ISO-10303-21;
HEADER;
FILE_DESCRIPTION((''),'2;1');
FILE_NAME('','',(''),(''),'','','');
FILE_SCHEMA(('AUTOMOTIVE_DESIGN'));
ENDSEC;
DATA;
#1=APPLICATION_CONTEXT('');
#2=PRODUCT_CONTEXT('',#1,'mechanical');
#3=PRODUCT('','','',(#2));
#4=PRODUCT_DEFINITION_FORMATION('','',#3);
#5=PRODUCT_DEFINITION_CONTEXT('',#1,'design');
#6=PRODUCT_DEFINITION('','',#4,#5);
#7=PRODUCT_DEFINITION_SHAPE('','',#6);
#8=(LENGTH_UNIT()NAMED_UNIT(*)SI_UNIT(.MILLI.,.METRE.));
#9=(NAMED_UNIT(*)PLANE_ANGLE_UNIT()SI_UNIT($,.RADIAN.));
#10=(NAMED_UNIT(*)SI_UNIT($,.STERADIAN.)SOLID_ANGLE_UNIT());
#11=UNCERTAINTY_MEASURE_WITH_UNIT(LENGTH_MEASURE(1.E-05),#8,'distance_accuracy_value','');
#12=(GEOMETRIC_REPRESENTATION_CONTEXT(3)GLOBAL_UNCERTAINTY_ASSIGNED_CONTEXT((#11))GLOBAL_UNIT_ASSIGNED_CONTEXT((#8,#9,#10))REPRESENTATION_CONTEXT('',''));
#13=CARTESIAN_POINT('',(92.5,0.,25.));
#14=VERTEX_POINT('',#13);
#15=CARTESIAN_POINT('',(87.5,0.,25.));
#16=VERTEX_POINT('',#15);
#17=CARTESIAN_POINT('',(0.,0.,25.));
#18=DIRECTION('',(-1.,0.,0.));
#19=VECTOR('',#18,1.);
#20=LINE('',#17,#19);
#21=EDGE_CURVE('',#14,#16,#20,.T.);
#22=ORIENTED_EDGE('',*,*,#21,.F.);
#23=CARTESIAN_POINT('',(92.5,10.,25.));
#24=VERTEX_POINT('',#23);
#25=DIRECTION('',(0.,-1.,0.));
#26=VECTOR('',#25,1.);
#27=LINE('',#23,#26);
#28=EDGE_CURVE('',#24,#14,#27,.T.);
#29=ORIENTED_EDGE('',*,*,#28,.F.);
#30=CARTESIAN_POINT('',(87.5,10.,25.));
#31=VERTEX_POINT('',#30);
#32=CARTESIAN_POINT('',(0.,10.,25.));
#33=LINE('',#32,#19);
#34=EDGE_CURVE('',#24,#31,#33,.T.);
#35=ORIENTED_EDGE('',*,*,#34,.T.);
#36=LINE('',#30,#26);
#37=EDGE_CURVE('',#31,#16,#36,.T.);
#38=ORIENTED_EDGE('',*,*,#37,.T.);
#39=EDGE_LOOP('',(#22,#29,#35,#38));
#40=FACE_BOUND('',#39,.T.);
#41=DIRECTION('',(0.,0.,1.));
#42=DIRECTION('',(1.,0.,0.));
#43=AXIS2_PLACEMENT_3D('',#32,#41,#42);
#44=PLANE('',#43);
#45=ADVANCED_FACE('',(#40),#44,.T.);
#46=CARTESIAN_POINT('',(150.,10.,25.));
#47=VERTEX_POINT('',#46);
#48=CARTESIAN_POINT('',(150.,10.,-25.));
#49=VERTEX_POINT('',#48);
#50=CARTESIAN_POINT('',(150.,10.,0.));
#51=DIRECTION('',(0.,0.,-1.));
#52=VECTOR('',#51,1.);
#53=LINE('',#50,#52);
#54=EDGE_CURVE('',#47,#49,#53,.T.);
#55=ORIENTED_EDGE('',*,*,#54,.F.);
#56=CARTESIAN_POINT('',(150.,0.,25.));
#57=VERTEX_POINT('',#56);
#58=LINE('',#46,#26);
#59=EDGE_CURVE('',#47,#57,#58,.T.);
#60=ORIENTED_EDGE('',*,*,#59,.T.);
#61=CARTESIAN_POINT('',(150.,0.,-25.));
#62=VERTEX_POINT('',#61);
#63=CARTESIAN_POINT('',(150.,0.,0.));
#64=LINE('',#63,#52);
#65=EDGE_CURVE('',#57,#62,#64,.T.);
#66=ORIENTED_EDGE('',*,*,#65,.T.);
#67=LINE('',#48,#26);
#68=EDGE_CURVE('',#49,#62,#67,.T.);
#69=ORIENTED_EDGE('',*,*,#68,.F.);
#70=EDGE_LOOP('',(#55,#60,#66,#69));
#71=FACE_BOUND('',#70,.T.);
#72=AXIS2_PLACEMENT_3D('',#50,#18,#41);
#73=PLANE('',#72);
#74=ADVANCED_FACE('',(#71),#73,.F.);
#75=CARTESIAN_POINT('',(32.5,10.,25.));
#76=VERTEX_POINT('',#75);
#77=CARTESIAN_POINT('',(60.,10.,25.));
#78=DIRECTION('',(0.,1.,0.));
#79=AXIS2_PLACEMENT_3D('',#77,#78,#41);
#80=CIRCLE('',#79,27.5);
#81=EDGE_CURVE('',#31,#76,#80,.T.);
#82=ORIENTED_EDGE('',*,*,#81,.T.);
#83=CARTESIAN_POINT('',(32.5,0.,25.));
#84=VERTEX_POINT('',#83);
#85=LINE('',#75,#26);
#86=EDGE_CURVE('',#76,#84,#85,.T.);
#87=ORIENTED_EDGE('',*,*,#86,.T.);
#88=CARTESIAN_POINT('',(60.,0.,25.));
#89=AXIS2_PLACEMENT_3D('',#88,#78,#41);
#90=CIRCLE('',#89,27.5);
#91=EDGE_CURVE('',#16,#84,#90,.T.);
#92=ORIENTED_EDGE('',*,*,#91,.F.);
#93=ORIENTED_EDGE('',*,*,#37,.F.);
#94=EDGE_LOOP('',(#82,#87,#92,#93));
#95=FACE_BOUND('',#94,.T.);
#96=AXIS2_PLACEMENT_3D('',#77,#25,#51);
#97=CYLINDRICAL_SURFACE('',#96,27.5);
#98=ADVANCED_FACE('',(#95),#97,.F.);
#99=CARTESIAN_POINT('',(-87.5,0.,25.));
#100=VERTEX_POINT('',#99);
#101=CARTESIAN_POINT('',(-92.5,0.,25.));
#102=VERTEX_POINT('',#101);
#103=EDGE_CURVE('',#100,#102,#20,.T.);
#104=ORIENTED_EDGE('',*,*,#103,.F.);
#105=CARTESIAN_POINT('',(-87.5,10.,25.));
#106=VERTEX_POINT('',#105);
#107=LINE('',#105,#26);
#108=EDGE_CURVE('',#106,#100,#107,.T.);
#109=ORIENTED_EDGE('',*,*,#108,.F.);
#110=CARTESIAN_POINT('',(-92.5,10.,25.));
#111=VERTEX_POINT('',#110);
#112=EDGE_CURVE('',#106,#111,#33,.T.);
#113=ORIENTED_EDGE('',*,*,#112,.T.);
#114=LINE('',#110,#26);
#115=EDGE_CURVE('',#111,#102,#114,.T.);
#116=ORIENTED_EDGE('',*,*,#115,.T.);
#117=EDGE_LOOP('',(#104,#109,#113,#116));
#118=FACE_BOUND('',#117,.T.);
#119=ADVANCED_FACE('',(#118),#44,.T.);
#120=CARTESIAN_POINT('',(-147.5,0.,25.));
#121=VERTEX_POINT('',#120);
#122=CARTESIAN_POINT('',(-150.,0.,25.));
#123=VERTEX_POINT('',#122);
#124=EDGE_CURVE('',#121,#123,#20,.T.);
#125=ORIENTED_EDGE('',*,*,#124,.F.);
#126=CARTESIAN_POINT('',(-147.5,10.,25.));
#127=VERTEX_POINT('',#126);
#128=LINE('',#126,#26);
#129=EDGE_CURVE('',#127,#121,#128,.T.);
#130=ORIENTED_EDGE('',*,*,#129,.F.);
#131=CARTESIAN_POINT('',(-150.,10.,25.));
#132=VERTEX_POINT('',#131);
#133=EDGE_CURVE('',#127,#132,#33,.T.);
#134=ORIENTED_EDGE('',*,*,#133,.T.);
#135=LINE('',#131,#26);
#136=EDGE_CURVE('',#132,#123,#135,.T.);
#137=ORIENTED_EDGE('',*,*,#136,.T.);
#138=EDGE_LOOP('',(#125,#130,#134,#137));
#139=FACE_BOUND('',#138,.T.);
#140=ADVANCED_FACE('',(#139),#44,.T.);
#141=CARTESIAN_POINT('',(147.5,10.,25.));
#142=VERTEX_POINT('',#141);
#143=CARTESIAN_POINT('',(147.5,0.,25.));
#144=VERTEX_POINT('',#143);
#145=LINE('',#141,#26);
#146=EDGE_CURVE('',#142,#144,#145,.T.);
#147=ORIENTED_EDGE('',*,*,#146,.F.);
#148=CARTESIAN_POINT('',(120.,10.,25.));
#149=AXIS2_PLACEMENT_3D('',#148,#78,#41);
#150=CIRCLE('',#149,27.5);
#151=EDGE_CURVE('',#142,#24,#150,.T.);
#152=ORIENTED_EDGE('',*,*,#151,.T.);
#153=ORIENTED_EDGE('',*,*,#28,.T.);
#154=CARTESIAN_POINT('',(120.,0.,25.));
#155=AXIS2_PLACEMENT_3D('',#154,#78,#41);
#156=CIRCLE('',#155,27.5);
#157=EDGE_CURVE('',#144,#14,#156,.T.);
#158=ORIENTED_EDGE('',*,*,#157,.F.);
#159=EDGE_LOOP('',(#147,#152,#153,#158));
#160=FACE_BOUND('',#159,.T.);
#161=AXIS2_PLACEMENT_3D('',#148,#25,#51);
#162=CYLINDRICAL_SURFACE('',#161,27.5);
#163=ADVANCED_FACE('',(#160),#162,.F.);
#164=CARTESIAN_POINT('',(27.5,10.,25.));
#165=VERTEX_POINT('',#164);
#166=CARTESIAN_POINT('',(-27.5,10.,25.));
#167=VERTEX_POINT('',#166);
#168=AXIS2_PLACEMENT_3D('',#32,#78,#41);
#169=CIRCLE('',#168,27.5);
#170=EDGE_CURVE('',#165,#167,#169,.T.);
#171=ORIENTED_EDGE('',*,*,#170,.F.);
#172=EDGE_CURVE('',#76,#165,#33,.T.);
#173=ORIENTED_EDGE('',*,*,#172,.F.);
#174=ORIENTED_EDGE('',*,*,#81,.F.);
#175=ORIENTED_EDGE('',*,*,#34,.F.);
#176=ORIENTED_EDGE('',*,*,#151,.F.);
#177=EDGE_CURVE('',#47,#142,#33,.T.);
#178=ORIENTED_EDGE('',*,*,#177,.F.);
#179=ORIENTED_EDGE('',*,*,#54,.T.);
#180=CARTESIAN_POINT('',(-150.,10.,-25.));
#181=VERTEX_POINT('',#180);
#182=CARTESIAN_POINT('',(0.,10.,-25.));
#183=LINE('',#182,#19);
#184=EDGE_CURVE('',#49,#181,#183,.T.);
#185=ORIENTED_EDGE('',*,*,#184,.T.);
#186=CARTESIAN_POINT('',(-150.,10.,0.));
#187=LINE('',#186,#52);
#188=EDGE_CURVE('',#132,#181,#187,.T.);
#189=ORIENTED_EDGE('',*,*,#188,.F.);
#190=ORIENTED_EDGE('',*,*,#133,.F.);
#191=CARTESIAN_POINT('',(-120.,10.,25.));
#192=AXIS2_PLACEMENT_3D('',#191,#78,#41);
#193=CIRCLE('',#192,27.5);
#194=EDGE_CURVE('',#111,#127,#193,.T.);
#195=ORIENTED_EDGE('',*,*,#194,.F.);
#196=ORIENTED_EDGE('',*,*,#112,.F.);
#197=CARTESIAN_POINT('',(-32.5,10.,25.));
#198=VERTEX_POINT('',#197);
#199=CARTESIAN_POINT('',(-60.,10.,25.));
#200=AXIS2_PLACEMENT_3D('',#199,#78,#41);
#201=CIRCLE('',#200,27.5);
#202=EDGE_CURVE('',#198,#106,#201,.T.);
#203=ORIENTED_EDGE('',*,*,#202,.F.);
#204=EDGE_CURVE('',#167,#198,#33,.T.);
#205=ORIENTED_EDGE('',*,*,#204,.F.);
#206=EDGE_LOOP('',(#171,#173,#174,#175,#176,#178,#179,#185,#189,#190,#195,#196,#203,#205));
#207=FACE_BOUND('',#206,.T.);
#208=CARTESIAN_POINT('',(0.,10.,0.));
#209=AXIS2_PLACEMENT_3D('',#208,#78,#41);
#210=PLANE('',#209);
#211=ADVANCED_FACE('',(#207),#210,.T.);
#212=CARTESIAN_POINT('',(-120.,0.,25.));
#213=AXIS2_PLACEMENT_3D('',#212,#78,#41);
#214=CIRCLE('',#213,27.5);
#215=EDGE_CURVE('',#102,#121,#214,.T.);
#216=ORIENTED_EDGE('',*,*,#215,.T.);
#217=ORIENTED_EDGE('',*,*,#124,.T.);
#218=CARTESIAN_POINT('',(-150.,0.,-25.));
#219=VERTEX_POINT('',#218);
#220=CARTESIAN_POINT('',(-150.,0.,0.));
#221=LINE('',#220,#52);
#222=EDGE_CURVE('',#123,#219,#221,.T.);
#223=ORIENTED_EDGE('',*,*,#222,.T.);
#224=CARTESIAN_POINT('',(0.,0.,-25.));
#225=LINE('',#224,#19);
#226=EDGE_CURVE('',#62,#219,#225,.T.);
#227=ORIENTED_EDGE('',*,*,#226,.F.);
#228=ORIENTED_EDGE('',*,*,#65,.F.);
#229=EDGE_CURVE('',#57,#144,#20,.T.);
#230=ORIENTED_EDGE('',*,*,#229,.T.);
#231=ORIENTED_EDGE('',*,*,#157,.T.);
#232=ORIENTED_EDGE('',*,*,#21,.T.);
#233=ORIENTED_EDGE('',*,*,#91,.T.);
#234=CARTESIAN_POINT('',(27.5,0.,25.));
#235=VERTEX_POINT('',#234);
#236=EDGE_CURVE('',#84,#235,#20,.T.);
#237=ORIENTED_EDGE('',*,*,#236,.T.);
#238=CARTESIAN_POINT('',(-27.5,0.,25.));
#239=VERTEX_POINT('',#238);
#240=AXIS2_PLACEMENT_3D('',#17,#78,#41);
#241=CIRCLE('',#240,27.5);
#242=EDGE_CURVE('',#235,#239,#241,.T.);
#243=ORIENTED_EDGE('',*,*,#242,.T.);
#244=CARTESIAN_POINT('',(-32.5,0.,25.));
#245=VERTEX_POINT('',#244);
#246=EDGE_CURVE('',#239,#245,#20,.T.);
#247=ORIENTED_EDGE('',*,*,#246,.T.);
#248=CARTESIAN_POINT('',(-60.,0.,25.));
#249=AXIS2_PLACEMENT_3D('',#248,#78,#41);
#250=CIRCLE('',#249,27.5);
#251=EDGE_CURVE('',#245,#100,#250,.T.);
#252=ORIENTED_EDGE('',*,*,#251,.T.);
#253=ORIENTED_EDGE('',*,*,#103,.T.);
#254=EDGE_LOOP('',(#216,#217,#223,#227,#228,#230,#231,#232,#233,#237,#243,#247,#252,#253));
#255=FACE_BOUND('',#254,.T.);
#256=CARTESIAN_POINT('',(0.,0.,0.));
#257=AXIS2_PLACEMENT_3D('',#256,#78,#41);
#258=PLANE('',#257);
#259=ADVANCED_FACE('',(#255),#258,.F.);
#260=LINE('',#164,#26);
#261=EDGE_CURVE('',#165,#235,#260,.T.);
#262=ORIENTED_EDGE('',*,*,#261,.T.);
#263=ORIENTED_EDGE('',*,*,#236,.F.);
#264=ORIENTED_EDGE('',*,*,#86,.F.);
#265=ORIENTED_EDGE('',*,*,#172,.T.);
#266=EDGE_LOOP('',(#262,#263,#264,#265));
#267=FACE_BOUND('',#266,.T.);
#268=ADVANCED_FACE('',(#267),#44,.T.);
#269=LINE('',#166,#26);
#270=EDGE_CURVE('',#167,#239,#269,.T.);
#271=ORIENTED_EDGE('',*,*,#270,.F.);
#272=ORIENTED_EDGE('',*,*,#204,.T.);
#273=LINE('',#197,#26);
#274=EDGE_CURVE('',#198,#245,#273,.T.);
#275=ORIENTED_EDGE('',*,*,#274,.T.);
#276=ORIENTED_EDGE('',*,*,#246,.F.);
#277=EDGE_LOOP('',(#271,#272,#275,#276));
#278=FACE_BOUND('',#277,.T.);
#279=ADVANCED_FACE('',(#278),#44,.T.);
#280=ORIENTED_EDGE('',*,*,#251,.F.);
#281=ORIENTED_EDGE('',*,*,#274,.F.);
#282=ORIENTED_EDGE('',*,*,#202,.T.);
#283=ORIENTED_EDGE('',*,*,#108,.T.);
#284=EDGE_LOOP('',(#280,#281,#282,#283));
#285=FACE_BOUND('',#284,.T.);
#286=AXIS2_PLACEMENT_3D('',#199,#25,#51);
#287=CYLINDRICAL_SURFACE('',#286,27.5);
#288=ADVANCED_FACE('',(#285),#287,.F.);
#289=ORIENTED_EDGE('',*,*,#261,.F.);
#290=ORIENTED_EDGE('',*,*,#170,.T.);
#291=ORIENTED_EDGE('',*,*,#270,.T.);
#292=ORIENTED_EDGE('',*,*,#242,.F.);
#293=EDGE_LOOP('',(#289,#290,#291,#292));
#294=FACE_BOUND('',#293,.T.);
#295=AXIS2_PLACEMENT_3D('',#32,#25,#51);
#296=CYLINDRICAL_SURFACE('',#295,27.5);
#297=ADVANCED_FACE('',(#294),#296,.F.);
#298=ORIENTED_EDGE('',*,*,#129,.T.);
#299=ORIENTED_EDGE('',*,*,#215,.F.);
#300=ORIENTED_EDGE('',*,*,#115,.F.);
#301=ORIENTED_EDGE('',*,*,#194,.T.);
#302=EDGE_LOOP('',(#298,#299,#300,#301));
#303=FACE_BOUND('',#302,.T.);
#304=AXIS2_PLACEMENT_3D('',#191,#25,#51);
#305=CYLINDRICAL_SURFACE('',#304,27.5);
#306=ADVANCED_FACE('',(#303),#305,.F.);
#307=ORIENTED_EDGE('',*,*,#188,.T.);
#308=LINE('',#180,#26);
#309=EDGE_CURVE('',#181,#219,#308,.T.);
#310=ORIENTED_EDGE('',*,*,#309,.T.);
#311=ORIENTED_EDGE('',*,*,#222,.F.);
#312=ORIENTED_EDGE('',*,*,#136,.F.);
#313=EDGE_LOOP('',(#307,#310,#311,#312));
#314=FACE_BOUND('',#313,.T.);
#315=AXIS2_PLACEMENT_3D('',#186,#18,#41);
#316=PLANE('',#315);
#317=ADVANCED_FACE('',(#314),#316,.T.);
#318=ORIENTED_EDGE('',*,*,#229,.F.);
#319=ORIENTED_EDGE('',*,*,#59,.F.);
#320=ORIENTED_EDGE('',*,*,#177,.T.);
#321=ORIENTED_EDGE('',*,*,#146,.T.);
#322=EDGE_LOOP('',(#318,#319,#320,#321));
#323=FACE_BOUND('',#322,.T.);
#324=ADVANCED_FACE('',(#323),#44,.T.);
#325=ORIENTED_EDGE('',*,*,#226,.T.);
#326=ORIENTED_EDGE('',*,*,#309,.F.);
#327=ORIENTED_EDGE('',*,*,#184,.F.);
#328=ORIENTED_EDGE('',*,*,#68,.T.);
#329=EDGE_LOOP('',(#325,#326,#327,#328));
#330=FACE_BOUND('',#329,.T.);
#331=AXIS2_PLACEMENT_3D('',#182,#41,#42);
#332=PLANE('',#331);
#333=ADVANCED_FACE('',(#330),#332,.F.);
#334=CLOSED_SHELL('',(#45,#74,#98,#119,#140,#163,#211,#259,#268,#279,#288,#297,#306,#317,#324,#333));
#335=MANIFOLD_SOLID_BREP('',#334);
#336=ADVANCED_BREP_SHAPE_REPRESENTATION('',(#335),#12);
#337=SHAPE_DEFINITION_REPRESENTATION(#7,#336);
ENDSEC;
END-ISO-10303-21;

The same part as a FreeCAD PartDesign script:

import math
import FreeCAD as App
import Part
import Sketcher
from FreeCAD import Vector
Q = App.Units.Quantity

doc = App.newDocument("Part")
params = doc.addObject("Spreadsheet::Sheet", "Params")
for row, (alias, value) in enumerate([
    ("sketch1_radius", "27.5 mm"),
    ("sketch1_width", "300 mm"),
    ("sketch1_width2", "5 mm"),
    ("sketch1_height", "50 mm"),
    ("pad1_length", "10 mm"),
], start=1):
    params.set(f"A{row}", alias)
    params.set(f"B{row}", "=" + value)
    params.setAlias(f"B{row}", alias)

body = doc.addObject("PartDesign::Body", "Body")

# Sketch on XZ plane
sketch1 = doc.addObject("Sketcher::SketchObject", "Sketch")
body.addObject(sketch1)
sketch1.AttachmentSupport = (doc.XZ_Plane, [""])
sketch1.MapMode = "FlatFace"
sketch1.addGeometry(Part.LineSegment(Vector(147.5, 25, 0), Vector(150, 25, 0)), False)
sketch1.addGeometry(Part.LineSegment(Vector(150, 25, 0), Vector(150, -25, 0)), False)
sketch1.addGeometry(Part.LineSegment(Vector(150, -25, 0), Vector(-150, -25, 0)), False)
sketch1.addGeometry(Part.LineSegment(Vector(-150, -25, 0), Vector(-150, 25, 0)), False)
sketch1.addGeometry(Part.LineSegment(Vector(-150, 25, 0), Vector(-147.5, 25, 0)), False)
sketch1.addGeometry(Part.ArcOfCircle(Part.Circle(Vector(-120, 25, 0), Vector(0, 0, 1), 27.5), math.radians(180), math.radians(360)), False)
sketch1.addGeometry(Part.LineSegment(Vector(-92.5, 25, 0), Vector(-87.5, 25, 0)), False)
sketch1.addGeometry(Part.ArcOfCircle(Part.Circle(Vector(-60, 25, 0), Vector(0, 0, 1), 27.5), math.radians(180), math.radians(360)), False)
sketch1.addGeometry(Part.LineSegment(Vector(-32.5, 25, 0), Vector(-27.5, 25, 0)), False)
sketch1.addGeometry(Part.ArcOfCircle(Part.Circle(Vector(0, 25, 0), Vector(0, 0, 1), 27.5), math.radians(180), math.radians(360)), False)
sketch1.addGeometry(Part.LineSegment(Vector(27.5, 25, 0), Vector(32.5, 25, 0)), False)
sketch1.addGeometry(Part.ArcOfCircle(Part.Circle(Vector(60, 25, 0), Vector(0, 0, 1), 27.5), math.radians(180), math.radians(360)), False)
sketch1.addGeometry(Part.LineSegment(Vector(87.5, 25, 0), Vector(92.5, 25, 0)), False)
sketch1.addGeometry(Part.ArcOfCircle(Part.Circle(Vector(120, 25, 0), Vector(0, 0, 1), 27.5), math.radians(180), math.radians(360)), False)
sketch1.addConstraint(Sketcher.Constraint("Coincident", 0, 2, 1, 1))
sketch1.addConstraint(Sketcher.Constraint("Coincident", 1, 2, 2, 1))
sketch1.addConstraint(Sketcher.Constraint("Coincident", 2, 2, 3, 1))
sketch1.addConstraint(Sketcher.Constraint("Coincident", 3, 2, 4, 1))
sketch1.addConstraint(Sketcher.Constraint("Coincident", 4, 2, 5, 1))
sketch1.addConstraint(Sketcher.Constraint("Coincident", 5, 2, 6, 1))
sketch1.addConstraint(Sketcher.Constraint("Coincident", 6, 2, 7, 1))
sketch1.addConstraint(Sketcher.Constraint("Coincident", 7, 2, 8, 1))
sketch1.addConstraint(Sketcher.Constraint("Coincident", 8, 2, 9, 1))
sketch1.addConstraint(Sketcher.Constraint("Coincident", 9, 2, 10, 1))
sketch1.addConstraint(Sketcher.Constraint("Coincident", 10, 2, 11, 1))
sketch1.addConstraint(Sketcher.Constraint("Coincident", 11, 2, 12, 1))
sketch1.addConstraint(Sketcher.Constraint("Coincident", 12, 2, 13, 1))
sketch1.addConstraint(Sketcher.Constraint("Coincident", 13, 2, 0, 1))
sketch1.addConstraint(Sketcher.Constraint("Horizontal", 0))
sketch1.addConstraint(Sketcher.Constraint("Vertical", 1))
sketch1.addConstraint(Sketcher.Constraint("Horizontal", 2))
sketch1.addConstraint(Sketcher.Constraint("Vertical", 3))
sketch1.addConstraint(Sketcher.Constraint("Horizontal", 4))
sketch1.addConstraint(Sketcher.Constraint("Horizontal", 6))
sketch1.addConstraint(Sketcher.Constraint("Horizontal", 8))
sketch1.addConstraint(Sketcher.Constraint("Horizontal", 10))
sketch1.addConstraint(Sketcher.Constraint("Horizontal", 12))
sketch1.addConstraint(Sketcher.Constraint("Equal", 5, 7))
sketch1.addConstraint(Sketcher.Constraint("Equal", 7, 9))
sketch1.addConstraint(Sketcher.Constraint("Equal", 9, 11))
sketch1.addConstraint(Sketcher.Constraint("Equal", 11, 13))
sketch1.addConstraint(Sketcher.Constraint("Symmetric", 0, 2, 2, 2, -1, 1))
sketch1.addConstraint(Sketcher.Constraint("Symmetric", 7, 3, 11, 3, -2))
sketch1.addConstraint(Sketcher.Constraint("Symmetric", 5, 3, 13, 3, -2))
sketch1.addConstraint(Sketcher.Constraint("Symmetric", 8, 2, 9, 2, -2))
sketch1.addConstraint(Sketcher.Constraint("Horizontal", 5, 3, 7, 3))
sketch1.addConstraint(Sketcher.Constraint("Horizontal", 7, 3, 9, 3))
sketch1.addConstraint(Sketcher.Constraint("Horizontal", 13, 3, 0, 2))
sketch1.addConstraint(Sketcher.Constraint("Horizontal", 0, 2, 3, 2))
sketch1.addConstraint(Sketcher.Constraint("Horizontal", 4, 2, 5, 2))
sketch1.addConstraint(Sketcher.Constraint("Horizontal", 6, 2, 7, 2))
sketch1.addConstraint(Sketcher.Constraint("Horizontal", 10, 2, 11, 2))
sketch1.addConstraint(Sketcher.Constraint("Equal", 6, 8))
sketch1.addConstraint(Sketcher.Constraint("Radius", 5, Q("27.5 mm")))
sketch1.addConstraint(Sketcher.Constraint("DistanceX", 2, 2, 2, 1, Q("300 mm")))
sketch1.addConstraint(Sketcher.Constraint("DistanceX", 6, 1, 6, 2, Q("5 mm")))
sketch1.addConstraint(Sketcher.Constraint("DistanceY", 1, 2, 1, 1, Q("50 mm")))
sketch1.setExpression("Constraints[39]", "Params.sketch1_radius")
sketch1.setExpression("Constraints[40]", "Params.sketch1_width")
sketch1.setExpression("Constraints[41]", "Params.sketch1_width2")
sketch1.setExpression("Constraints[42]", "Params.sketch1_height")
pad1 = doc.addObject("PartDesign::Pad", "Pad")
body.addObject(pad1)
pad1.Profile = sketch1
pad1.setExpression("Length", "Params.pad1_length")
pad1.Reversed = True

doc.recompute()
